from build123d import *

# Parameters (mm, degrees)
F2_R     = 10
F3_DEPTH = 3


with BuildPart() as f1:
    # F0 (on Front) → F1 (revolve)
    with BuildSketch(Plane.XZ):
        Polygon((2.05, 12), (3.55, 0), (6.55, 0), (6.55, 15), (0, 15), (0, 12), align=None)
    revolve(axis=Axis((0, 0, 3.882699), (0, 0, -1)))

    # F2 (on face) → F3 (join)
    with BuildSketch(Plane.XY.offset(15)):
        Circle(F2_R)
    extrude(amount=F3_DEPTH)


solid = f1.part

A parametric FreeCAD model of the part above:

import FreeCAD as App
import Part
import Sketcher

V = App.Vector
Q = App.Units.Quantity

doc = App.newDocument("Part")
body = doc.addObject("PartDesign::Body", "Body")

sketch1 = body.newObject("Sketcher::SketchObject", "Sketch")
sketch1.AttachmentSupport = (doc.getObject("XZ_Plane"), [""])
sketch1.MapMode = "FlatFace"
sketch1.addGeometry(Part.LineSegment(V(2.05, 12, 0), V(3.55, 0, 0)), False)
sketch1.addGeometry(Part.LineSegment(V(3.55, 0, 0), V(6.55, 0, 0)), False)
sketch1.addGeometry(Part.LineSegment(V(6.55, 0, 0), V(6.55, 15, 0)), False)
sketch1.addGeometry(Part.LineSegment(V(6.55, 15, 0), V(0, 15, 0)), False)
sketch1.addGeometry(Part.LineSegment(V(0, 15, 0), V(0, 12, 0)), False)
sketch1.addGeometry(Part.LineSegment(V(0, 12, 0), V(2.05, 12, 0)), False)
sketch1.addConstraint(Sketcher.Constraint("Coincident", 0, 2, 1, 1))
sketch1.addConstraint(Sketcher.Constraint("Coincident", 1, 2, 2, 1))
sketch1.addConstraint(Sketcher.Constraint("Coincident", 2, 2, 3, 1))
sketch1.addConstraint(Sketcher.Constraint("Coincident", 3, 2, 4, 1))
sketch1.addConstraint(Sketcher.Constraint("Coincident", 4, 2, 5, 1))
sketch1.addConstraint(Sketcher.Constraint("Coincident", 5, 2, 0, 1))
sketch1.addConstraint(Sketcher.Constraint("Horizontal", 1))
sketch1.addConstraint(Sketcher.Constraint("Vertical", 2))
sketch1.addConstraint(Sketcher.Constraint("Horizontal", 3))
sketch1.addConstraint(Sketcher.Constraint("Vertical", 4))
sketch1.addConstraint(Sketcher.Constraint("Horizontal", 5))
sketch1.addConstraint(Sketcher.Constraint("PointOnObject", 0, 2, -1))
sketch1.addConstraint(Sketcher.Constraint("PointOnObject", 3, 2, -2))
sketch1.addConstraint(Sketcher.Constraint("Equal", 1, 4))
sketch1.addConstraint(Sketcher.Constraint("DistanceX", 1, 1, 1, 2, Q("3 mm")))
sketch1.addConstraint(Sketcher.Constraint("DistanceY", 2, 1, 2, 2, Q("15 mm")))
sketch1.addConstraint(Sketcher.Constraint("DistanceX", 3, 2, 3, 1, Q("6.55 mm")))
sketch1.addConstraint(Sketcher.Constraint("DistanceX", 5, 1, 5, 2, Q("2.05 mm")))
revolution = body.newObject("PartDesign::Revolution", "Revolution")
revolution.Profile = sketch1
revolution.ReferenceAxis = (sketch1, ["V_Axis"])
revolution.Angle = 360

sketch2 = body.newObject("Sketcher::SketchObject", "Sketch001")
sketch2.AttachmentSupport = (doc.getObject("XY_Plane"), [""])
sketch2.MapMode = "FlatFace"
sketch2.AttachmentOffset = App.Placement(V(0, 0, 15), App.Rotation())
sketch2.addGeometry(Part.Circle(V(0, 0, 0), V(0, 0, 1), 10), False)
sketch2.addConstraint(Sketcher.Constraint("Coincident", 0, 3, -1, 1))
sketch2.addConstraint(Sketcher.Constraint("Diameter", 0, Q("20 mm")))
pad1 = body.newObject("PartDesign::Pad", "Pad")
pad1.Profile = sketch2
pad1.Length = 3

doc.recompute()
